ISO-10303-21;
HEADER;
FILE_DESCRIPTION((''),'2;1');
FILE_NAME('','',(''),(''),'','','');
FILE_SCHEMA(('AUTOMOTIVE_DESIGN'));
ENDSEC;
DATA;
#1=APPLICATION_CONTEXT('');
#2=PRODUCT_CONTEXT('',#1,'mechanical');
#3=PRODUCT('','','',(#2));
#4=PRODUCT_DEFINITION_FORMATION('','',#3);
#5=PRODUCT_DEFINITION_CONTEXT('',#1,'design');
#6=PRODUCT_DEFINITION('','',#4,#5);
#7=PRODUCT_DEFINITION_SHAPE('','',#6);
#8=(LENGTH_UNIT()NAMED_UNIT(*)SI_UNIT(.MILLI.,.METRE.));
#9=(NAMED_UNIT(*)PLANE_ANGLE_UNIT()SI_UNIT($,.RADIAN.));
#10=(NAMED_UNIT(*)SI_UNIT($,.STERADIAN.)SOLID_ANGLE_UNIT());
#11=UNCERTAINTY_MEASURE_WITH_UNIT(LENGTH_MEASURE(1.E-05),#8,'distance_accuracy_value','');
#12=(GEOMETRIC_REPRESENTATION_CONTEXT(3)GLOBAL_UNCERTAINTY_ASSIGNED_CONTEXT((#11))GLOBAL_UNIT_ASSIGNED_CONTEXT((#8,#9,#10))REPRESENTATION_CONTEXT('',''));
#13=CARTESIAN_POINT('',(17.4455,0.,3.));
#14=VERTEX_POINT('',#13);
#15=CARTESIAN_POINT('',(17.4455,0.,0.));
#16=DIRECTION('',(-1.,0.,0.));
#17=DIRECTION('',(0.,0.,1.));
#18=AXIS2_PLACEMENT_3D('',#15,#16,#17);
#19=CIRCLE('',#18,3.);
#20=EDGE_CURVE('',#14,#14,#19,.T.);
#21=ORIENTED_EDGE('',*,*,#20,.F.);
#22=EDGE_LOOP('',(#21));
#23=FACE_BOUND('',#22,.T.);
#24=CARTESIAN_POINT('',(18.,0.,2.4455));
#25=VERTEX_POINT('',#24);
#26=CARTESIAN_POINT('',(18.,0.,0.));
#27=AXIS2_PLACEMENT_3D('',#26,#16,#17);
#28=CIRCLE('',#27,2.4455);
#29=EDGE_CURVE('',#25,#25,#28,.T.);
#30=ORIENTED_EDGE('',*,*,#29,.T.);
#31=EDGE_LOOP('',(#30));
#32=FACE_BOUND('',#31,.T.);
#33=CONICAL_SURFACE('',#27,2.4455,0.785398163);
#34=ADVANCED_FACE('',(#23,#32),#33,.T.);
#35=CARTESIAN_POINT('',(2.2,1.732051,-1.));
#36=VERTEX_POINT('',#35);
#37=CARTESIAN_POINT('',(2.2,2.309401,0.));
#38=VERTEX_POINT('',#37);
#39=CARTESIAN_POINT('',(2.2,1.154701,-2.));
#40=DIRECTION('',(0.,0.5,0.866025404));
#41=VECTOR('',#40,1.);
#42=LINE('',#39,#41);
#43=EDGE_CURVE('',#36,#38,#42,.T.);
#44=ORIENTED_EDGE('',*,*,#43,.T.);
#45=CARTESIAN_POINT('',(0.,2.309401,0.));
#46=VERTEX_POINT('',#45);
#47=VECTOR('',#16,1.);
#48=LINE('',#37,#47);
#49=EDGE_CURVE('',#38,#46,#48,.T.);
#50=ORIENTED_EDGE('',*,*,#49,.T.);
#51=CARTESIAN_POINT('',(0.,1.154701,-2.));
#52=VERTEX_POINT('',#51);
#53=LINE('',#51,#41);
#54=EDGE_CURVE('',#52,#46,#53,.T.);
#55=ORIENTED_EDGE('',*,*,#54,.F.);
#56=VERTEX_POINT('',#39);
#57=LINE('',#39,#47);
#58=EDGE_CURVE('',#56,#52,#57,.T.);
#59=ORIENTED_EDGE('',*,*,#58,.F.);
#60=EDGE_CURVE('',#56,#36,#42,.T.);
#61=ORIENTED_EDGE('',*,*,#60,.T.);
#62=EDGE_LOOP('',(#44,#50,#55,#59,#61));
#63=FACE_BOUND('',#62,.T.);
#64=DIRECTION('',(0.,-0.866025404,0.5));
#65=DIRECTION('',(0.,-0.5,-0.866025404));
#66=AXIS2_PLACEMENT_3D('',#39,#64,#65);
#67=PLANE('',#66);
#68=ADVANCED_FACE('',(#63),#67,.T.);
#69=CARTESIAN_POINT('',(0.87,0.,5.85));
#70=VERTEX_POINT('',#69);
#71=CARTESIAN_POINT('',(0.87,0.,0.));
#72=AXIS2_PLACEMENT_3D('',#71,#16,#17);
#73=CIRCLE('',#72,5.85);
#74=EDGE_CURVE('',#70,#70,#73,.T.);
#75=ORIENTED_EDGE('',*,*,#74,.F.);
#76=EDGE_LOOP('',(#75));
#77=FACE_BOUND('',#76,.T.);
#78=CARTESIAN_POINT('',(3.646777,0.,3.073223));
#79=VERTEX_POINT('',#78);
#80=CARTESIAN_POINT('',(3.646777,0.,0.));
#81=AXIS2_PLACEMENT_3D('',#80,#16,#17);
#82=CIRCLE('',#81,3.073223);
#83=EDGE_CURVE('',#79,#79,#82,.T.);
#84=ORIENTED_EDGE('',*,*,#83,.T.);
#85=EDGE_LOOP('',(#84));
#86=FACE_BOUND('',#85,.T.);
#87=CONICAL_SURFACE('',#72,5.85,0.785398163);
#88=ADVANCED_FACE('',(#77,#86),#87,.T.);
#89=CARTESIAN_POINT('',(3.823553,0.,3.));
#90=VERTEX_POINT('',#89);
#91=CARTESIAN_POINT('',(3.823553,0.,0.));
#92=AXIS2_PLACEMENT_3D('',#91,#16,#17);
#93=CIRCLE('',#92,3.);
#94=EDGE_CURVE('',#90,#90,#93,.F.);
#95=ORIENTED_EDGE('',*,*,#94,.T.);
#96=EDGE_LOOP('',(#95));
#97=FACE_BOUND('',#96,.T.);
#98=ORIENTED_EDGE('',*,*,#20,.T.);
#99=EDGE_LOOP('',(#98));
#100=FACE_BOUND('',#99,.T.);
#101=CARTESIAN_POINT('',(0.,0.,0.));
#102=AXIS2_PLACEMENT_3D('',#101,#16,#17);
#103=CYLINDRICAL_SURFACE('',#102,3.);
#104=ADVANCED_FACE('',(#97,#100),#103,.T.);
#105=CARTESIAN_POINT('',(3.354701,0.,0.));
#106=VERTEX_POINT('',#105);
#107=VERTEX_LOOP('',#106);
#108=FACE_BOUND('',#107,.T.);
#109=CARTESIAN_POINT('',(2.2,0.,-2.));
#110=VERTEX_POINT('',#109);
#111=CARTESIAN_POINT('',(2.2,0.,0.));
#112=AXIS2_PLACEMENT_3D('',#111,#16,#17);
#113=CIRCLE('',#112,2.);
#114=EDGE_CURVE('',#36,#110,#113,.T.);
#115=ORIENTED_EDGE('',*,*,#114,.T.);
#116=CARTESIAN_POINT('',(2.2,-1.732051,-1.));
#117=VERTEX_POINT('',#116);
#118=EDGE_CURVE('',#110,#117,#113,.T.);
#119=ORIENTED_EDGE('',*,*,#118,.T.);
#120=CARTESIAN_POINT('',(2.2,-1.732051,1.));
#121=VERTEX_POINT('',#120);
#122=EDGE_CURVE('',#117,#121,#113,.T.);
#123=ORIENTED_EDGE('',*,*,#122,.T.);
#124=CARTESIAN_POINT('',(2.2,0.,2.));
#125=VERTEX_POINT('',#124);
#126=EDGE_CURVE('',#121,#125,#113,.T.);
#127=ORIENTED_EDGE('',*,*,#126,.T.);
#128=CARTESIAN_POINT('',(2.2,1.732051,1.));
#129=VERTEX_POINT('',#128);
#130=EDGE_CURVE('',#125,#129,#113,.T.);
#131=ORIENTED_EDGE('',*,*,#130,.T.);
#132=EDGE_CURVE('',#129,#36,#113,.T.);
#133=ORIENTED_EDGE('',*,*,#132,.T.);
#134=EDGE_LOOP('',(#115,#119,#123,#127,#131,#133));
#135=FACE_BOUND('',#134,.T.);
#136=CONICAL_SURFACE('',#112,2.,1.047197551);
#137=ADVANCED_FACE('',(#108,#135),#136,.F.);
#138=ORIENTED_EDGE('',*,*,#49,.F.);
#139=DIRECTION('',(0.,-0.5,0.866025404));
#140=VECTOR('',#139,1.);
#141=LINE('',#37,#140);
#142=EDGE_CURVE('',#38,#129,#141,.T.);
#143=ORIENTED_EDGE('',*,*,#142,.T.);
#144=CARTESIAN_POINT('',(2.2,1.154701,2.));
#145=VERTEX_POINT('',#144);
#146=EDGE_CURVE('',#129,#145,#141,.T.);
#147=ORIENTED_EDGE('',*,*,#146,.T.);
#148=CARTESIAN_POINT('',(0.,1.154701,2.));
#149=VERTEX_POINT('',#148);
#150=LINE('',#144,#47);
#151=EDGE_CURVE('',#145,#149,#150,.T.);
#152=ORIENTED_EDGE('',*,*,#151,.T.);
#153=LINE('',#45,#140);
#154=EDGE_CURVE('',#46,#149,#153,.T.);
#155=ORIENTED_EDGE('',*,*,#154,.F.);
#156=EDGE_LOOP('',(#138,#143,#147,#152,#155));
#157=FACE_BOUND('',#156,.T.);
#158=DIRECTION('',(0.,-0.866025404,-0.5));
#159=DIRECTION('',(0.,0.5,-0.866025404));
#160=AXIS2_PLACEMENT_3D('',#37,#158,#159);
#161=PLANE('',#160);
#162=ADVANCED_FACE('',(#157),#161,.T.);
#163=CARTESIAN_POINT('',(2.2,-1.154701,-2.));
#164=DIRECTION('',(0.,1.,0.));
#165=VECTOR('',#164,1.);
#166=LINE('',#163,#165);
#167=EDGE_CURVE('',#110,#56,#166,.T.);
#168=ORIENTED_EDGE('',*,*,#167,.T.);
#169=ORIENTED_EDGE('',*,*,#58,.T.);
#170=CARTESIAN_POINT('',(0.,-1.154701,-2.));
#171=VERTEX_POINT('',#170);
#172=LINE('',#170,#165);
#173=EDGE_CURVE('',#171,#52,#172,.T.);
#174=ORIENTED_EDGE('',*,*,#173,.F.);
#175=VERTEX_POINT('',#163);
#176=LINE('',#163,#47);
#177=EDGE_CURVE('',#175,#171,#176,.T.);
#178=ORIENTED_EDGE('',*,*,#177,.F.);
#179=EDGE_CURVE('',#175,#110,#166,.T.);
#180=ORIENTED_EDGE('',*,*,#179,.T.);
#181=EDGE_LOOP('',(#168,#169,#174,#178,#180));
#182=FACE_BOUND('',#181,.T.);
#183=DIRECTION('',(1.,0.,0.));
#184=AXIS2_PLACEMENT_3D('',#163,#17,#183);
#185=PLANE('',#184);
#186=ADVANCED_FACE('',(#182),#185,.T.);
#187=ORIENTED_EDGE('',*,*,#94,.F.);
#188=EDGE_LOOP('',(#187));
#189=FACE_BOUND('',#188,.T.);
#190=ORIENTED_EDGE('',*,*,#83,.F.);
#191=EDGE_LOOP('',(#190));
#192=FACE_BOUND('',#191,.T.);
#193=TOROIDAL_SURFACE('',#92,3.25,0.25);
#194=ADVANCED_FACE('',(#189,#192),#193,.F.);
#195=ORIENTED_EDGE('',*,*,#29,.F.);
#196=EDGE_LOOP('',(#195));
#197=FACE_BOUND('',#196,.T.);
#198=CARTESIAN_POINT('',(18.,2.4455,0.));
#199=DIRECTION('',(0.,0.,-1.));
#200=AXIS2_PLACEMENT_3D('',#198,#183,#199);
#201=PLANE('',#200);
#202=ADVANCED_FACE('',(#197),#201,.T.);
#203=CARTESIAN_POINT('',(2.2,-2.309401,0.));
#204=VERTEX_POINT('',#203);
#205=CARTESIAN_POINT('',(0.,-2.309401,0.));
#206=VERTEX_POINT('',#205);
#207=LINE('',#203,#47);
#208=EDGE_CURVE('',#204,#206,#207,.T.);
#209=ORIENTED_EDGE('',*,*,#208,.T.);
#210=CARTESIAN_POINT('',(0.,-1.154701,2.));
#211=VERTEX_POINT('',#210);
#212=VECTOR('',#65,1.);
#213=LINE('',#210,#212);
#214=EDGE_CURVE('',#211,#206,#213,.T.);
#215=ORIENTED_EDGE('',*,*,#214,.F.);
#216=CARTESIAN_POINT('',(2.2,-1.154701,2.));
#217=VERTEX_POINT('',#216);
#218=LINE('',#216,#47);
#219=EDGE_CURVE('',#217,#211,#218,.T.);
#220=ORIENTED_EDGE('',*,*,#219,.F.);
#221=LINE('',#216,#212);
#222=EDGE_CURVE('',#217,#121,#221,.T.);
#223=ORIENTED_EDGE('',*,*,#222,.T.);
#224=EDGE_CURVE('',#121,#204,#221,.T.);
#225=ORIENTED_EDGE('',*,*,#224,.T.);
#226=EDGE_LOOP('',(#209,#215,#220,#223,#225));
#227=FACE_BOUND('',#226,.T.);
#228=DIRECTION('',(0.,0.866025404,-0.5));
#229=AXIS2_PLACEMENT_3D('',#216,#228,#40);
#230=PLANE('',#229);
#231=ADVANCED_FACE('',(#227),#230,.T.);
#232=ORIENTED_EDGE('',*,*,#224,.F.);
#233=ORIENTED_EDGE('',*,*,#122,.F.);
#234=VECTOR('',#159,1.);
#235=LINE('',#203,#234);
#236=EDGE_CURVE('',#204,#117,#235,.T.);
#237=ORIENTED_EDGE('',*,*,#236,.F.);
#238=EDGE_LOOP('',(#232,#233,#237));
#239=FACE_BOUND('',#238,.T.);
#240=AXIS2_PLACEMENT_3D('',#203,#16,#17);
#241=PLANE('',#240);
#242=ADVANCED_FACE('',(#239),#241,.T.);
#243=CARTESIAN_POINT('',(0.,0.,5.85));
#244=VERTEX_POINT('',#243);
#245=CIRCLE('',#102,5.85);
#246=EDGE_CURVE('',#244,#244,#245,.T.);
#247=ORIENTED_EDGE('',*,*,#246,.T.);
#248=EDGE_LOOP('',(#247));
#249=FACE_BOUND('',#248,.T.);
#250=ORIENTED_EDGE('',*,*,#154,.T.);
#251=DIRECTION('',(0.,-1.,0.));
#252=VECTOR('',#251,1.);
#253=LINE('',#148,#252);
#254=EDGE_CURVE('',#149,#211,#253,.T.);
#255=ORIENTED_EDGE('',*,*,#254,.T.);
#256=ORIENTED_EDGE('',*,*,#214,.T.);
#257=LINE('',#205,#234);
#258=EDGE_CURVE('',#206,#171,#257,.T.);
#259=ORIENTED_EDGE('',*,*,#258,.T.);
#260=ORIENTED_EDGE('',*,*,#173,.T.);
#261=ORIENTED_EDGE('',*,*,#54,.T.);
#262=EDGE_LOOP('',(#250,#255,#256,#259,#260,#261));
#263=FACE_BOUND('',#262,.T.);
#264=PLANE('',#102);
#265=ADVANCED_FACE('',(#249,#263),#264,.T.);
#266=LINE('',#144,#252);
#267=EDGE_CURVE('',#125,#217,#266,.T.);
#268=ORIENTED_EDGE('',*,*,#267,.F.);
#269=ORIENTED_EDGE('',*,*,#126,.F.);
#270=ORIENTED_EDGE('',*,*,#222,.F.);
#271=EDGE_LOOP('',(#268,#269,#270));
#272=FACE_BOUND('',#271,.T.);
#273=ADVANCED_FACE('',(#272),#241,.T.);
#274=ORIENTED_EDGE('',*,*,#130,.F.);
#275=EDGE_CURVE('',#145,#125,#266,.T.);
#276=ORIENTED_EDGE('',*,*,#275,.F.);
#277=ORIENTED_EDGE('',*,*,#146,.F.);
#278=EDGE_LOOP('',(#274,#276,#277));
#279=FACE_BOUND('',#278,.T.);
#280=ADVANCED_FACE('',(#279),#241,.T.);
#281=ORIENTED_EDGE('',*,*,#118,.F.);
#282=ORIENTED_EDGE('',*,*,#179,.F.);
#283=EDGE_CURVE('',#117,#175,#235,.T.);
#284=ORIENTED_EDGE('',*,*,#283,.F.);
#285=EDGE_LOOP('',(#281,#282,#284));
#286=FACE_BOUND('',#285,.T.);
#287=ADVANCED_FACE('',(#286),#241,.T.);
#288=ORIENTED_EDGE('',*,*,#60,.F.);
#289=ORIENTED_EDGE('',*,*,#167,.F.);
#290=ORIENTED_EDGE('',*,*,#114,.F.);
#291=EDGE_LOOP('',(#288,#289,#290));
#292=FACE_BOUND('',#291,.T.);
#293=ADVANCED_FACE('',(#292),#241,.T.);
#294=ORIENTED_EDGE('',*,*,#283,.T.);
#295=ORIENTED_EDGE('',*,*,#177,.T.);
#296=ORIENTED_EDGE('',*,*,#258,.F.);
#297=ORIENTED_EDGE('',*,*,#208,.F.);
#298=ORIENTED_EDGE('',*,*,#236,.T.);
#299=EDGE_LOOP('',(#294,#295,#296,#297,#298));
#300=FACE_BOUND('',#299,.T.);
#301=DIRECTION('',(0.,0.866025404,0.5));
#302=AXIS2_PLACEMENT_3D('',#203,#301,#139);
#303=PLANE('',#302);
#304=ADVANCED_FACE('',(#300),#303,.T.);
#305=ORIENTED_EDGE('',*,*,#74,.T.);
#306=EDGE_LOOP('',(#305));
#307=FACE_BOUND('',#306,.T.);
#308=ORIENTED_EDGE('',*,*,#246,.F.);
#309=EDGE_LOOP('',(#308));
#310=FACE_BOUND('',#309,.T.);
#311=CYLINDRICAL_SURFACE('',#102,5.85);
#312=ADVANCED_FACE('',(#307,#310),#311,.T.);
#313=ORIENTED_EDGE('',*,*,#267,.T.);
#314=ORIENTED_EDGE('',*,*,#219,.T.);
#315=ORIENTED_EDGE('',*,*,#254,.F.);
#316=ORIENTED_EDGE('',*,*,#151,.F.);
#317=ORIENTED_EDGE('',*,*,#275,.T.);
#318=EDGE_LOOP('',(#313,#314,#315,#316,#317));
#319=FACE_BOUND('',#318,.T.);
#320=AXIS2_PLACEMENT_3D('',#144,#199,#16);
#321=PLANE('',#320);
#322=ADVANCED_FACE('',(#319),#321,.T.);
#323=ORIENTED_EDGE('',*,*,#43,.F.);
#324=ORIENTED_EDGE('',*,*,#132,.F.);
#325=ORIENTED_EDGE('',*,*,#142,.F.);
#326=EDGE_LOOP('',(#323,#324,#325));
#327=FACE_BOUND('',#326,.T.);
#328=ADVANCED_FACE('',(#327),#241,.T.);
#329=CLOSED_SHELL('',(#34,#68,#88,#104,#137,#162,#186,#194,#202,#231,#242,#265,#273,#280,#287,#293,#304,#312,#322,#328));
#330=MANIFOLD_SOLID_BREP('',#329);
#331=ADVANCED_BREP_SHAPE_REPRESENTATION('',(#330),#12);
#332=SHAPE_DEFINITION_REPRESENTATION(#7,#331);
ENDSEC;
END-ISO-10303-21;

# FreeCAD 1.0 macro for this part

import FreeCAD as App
import Part
import Sketcher

V = App.Vector
Q = App.Units.Quantity


def edges_at(feature, points):
    """Names of the edges that pass closest to the given points."""
    edges = feature.Shape.Edges
    near = lambda p: min(range(len(edges)), key=lambda i: edges[i].distToShape(Part.Vertex(*p))[0])
    return sorted({f"Edge{near(p) + 1}" for p in points})

doc = App.newDocument("Part")
body = doc.addObject("PartDesign::Body", "Body")

# Sketch on XY plane
sketch1 = body.newObject("Sketcher::SketchObject", "Sketch")
sketch1.AttachmentSupport = (doc.getObject("XY_Plane"), [""])
sketch1.MapMode = "FlatFace"
sketch1.addGeometry([
    Part.LineSegment(V(0, 5.8, 0), V(0, 0, 0)),  # 0
    Part.LineSegment(V(0, 0, 0), V(18, 0, 0)),  # 1
    Part.LineSegment(V(18, 0, 0), V(18, 2.4, 0)),  # 2
    Part.LineSegment(V(18, 2.4, 0), V(17.4, 3, 0)),  # 3
    Part.LineSegment(V(17.4, 3, 0), V(3.7, 3, 0)),  # 4
    Part.LineSegment(V(3.7, 3, 0), V(0.9, 5.8, 0)),  # 5
    Part.LineSegment(V(0.9, 5.8, 0), V(0, 5.8, 0)),  # 6
], False)
sketch1.addConstraint([
    Sketcher.Constraint("Coincident", 0, 2, 1, 1),
    Sketcher.Constraint("Coincident", 1, 2, 2, 1),
    Sketcher.Constraint("Coincident", 2, 2, 3, 1),
    Sketcher.Constraint("Coincident", 3, 2, 4, 1),
    Sketcher.Constraint("Coincident", 4, 2, 5, 1),
    Sketcher.Constraint("Coincident", 5, 2, 6, 1),
    Sketcher.Constraint("Coincident", 6, 2, 0, 1),
    Sketcher.Constraint("Vertical", 0),
    Sketcher.Constraint("Horizontal", 1),
    Sketcher.Constraint("Vertical", 2),
    Sketcher.Constraint("Horizontal", 4),
    Sketcher.Constraint("Horizontal", 6),
    Sketcher.Constraint("Coincident", 0, 2, -1, 1),
    Sketcher.Constraint("Parallel", 3, 5),
    Sketcher.Constraint("DistanceX", 1, 1, 1, 2, 18.0),
    Sketcher.Constraint("Angle", 3, Q("135 deg")),
    Sketcher.Constraint("DistanceY", -1, 1, 3, 2, 3.0),
    Sketcher.Constraint("DistanceX", 6, 2, 6, 1, 0.87),
    Sketcher.Constraint("DistanceY", 0, 2, 0, 1, 5.85),
    Sketcher.Constraint("DistanceX", 4, 2, 4, 1, 13.7255),
])
revolution = body.newObject("PartDesign::Revolution", "Revolution")
revolution.Profile = sketch1
revolution.ReferenceAxis = (sketch1, ["H_Axis"])
revolution.Angle = 360
doc.recompute()

fillet = body.newObject("PartDesign::Fillet", "Fillet")
fillet.Base = (revolution, edges_at(revolution, [(3.72, 0, -3)]))
fillet.Radius = 0.25

# Sketch on XY plane
sketch2 = body.newObject("Sketcher::SketchObject", "Sketch001")
sketch2.AttachmentSupport = (doc.getObject("XY_Plane"), [""])
sketch2.MapMode = "FlatFace"
sketch2.addGeometry([
    Part.LineSegment(V(2.2, 2, 0), V(0, 2, 0)),
    Part.LineSegment(V(0, 2, 0), V(0, 0, 0)),
    Part.LineSegment(V(0, 0, 0), V(3.4, 0, 0)),
    Part.LineSegment(V(3.4, 0, 0), V(2.2, 2, 0)),
], False)
sketch2.addConstraint([
    Sketcher.Constraint("Coincident", 0, 2, 1, 1),
    Sketcher.Constraint("Coincident", 1, 2, 2, 1),
    Sketcher.Constraint("Coincident", 2, 2, 3, 1),
    Sketcher.Constraint("Coincident", 3, 2, 0, 1),
    Sketcher.Constraint("Horizontal", 0),
    Sketcher.Constraint("Vertical", 1),
    Sketcher.Constraint("Horizontal", 2),
    Sketcher.Constraint("Coincident", 1, 2, -1, 1),
    Sketcher.Constraint("DistanceY", 1, 2, 1, 1, 2.0),
    Sketcher.Constraint("Angle", 3, Q("120 deg")),
    Sketcher.Constraint("DistanceX", 0, 2, 0, 1, 2.2),
])
groove = body.newObject("PartDesign::Groove", "Groove")
groove.Profile = sketch2
groove.ReferenceAxis = (sketch2, ["H_Axis"])
groove.Angle = 360

# Sketch on YZ plane
sketch3 = body.newObject("Sketcher::SketchObject", "Sketch002")
sketch3.AttachmentSupport = (doc.getObject("YZ_Plane"), [""])
sketch3.MapMode = "FlatFace"
sketch3.addGeometry([
    Part.LineSegment(V(1.2, -2, 0), V(-1.2, -2, 0)),  # 0
    Part.LineSegment(V(-1.2, -2, 0), V(-2.3, 0, 0)),  # 1
    Part.LineSegment(V(-2.3, 0, 0), V(-1.2, 2, 0)),  # 2
    Part.LineSegment(V(-1.2, 2, 0), V(1.2, 2, 0)),  # 3
    Part.LineSegment(V(1.2, 2, 0), V(2.3, 0, 0)),  # 4
    Part.LineSegment(V(2.3, 0, 0), V(1.2, -2, 0)),  # 5
], False)
sketch3.addConstraint([
    Sketcher.Constraint("Coincident", 0, 2, 1, 1),
    Sketcher.Constraint("Coincident", 1, 2, 2, 1),
    Sketcher.Constraint("Coincident", 2, 2, 3, 1),
    Sketcher.Constraint("Coincident", 3, 2, 4, 1),
    Sketcher.Constraint("Coincident", 4, 2, 5, 1),
    Sketcher.Constraint("Coincident", 5, 2, 0, 1),
    Sketcher.Constraint("Horizontal", 0),
    Sketcher.Constraint("Horizontal", 3),
    Sketcher.Constraint("Symmetric", 0, 2, 3, 2, -1, 1),
    Sketcher.Constraint("Symmetric", 1, 2, 4, 2, -1, 1),
    Sketcher.Constraint("PointOnObject", 1, 2, -1),
    Sketcher.Constraint("Parallel", 2, 5),
    Sketcher.Constraint("Vertical", 0, 2, 2, 2),
    Sketcher.Constraint("Angle", 1, Q("120 deg")),
    Sketcher.Constraint("DistanceY", 0, 2, -1, 1, 2.0),
    Sketcher.Constraint("DistanceX", 0, 2, 0, 1, 2.309401),
])
pocket1 = body.newObject("PartDesign::Pocket", "Pocket")
pocket1.Profile = sketch3
pocket1.Length = 2.2
pocket1.Reversed = True

doc.recompute()
